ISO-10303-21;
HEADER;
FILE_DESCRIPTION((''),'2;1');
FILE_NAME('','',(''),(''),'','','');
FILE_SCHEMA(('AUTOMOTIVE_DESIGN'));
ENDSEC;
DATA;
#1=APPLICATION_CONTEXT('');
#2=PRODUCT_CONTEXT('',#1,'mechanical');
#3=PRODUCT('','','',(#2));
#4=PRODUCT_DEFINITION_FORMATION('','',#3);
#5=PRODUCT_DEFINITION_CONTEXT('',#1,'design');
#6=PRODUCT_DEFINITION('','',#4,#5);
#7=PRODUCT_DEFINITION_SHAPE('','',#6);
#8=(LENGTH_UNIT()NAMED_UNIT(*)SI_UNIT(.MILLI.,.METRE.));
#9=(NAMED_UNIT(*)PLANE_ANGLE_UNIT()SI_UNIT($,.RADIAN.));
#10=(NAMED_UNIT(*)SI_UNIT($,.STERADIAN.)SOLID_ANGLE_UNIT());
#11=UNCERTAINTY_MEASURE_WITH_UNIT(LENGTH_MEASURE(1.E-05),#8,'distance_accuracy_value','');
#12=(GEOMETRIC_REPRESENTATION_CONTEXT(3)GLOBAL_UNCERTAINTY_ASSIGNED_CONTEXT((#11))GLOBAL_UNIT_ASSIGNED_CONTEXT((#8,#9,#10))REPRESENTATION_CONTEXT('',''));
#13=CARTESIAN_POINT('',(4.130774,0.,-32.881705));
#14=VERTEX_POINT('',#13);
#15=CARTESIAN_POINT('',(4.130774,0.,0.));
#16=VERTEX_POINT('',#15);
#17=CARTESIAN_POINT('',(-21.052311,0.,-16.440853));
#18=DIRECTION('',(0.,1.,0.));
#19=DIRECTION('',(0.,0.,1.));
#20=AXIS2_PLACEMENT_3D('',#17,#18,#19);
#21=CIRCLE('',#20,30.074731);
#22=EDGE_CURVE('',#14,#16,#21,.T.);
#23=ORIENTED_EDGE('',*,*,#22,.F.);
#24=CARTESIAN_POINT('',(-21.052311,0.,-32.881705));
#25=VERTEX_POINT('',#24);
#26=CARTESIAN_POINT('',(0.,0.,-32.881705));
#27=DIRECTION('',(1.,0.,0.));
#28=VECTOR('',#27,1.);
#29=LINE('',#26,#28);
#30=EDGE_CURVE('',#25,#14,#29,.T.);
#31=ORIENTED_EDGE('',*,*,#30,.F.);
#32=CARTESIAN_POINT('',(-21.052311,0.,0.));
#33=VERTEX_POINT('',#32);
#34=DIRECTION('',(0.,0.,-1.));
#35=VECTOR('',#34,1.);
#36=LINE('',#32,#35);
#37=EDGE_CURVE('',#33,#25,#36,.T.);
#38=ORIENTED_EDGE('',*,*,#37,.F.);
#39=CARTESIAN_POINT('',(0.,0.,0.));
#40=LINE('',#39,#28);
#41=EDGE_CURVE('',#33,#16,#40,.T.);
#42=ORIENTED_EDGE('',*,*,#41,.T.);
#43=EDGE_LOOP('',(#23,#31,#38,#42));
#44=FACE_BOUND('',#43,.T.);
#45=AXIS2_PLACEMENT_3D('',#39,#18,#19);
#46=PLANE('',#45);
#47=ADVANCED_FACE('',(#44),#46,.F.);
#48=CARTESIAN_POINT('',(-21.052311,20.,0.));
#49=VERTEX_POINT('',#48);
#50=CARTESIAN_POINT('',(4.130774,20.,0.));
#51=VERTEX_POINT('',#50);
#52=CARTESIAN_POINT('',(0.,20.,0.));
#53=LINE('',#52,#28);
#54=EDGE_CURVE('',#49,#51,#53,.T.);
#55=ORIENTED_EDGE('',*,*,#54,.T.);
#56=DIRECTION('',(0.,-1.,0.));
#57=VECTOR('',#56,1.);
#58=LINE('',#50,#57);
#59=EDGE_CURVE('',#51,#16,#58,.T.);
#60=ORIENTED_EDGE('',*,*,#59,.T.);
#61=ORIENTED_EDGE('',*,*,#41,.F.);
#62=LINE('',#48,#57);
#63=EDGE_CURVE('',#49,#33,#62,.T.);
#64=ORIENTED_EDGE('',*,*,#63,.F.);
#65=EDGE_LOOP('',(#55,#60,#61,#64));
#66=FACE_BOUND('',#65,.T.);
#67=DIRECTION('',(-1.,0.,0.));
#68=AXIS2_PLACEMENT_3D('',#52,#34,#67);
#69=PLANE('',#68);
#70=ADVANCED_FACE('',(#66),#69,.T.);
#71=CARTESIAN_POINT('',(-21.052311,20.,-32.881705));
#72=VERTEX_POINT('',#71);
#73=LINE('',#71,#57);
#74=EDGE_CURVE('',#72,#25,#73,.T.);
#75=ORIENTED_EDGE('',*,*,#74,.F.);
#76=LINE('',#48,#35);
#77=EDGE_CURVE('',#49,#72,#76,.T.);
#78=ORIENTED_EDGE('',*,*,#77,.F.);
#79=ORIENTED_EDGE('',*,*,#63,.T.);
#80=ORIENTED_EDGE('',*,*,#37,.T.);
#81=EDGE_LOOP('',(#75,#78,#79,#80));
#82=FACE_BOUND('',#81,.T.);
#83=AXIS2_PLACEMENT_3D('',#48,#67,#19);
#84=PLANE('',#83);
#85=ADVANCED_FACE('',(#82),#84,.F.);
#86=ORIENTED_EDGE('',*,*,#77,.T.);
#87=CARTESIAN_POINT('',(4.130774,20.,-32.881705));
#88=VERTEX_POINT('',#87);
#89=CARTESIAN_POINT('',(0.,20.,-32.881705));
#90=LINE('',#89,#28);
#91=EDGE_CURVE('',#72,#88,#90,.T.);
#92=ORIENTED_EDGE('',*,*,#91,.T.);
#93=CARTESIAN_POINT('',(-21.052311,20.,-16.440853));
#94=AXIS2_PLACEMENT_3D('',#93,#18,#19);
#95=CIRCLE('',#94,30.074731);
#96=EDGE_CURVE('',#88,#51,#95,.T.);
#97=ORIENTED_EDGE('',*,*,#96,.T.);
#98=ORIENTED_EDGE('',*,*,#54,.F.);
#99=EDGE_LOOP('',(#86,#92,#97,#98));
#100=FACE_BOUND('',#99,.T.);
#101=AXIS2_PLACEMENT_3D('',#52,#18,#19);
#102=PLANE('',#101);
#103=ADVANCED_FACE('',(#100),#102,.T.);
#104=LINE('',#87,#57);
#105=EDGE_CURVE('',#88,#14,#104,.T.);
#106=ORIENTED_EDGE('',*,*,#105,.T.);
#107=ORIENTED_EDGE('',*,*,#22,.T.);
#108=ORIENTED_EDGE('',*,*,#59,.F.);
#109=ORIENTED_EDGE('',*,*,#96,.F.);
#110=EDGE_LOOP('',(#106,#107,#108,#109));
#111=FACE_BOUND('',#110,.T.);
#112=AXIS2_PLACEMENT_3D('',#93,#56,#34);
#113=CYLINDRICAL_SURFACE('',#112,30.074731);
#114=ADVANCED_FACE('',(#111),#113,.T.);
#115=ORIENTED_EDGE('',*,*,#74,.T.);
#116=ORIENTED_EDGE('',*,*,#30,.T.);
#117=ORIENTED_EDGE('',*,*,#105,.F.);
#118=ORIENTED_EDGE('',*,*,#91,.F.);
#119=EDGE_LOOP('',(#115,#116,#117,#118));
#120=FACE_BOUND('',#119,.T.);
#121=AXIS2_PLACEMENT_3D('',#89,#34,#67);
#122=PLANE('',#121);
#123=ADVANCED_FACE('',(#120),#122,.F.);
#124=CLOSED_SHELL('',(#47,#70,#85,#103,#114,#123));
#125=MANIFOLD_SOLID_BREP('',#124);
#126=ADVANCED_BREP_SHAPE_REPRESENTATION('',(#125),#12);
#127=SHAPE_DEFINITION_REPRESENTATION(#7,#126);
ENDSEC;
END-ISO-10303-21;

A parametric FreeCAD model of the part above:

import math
import FreeCAD as App
import Part
import Sketcher
Q = App.Units.Quantity

doc = App.newDocument("Part")
body = doc.addObject("PartDesign::Body", "Body")

# Sketch on XZ plane
sketch1 = doc.addObject("Sketcher::SketchObject", "Sketch")
body.addObject(sketch1)
sketch1.AttachmentSupport = (doc.XZ_Plane, [""])
sketch1.MapMode = "FlatFace"
sketch1.addGeometry([
    Part.LineSegment(App.Vector(4.130774, 0, 0), App.Vector(-21.052311, 0, 0)),
    Part.LineSegment(App.Vector(-21.052311, 0, 0), App.Vector(-21.052311, -32.881705, 0)),
    Part.LineSegment(App.Vector(-21.052311, -32.881705, 0), App.Vector(4.130774, -32.881705, 0)),
    Part.ArcOfCircle(Part.Circle(App.Vector(-21.052311, -16.440853, 0), App.Vector(0, 0, 1), 30.074731), math.radians(33.138632), math.radians(326.861368)),
], False)
sketch1.addConstraint([
    Sketcher.Constraint("Coincident", 0, 2, 1, 1),
    Sketcher.Constraint("Coincident", 1, 2, 2, 1),
    Sketcher.Constraint("Coincident", 2, 2, 3, 2),
    Sketcher.Constraint("Coincident", 3, 1, 0, 1),
    Sketcher.Constraint("Horizontal", 0),
    Sketcher.Constraint("Vertical", 1),
    Sketcher.Constraint("Horizontal", 2),
    Sketcher.Constraint("PointOnObject", 0, 2, -1),
    Sketcher.Constraint("Vertical", 3, 3, 0, 2),
    Sketcher.Constraint("Vertical", 2, 2, 3, 1),
    Sketcher.Constraint("Radius", 3, Q("30.074731 mm")),
    Sketcher.Constraint("DistanceX", 0, 2, 0, 1, Q("25.183085 mm")),
    Sketcher.Constraint("DistanceX", 3, 3, -1, 1, Q("21.052311 mm")),
])
pad1 = doc.addObject("PartDesign::Pad", "Pad")
body.addObject(pad1)
pad1.Profile = sketch1
pad1.Length = 20
pad1.Reversed = True

doc.recompute()
